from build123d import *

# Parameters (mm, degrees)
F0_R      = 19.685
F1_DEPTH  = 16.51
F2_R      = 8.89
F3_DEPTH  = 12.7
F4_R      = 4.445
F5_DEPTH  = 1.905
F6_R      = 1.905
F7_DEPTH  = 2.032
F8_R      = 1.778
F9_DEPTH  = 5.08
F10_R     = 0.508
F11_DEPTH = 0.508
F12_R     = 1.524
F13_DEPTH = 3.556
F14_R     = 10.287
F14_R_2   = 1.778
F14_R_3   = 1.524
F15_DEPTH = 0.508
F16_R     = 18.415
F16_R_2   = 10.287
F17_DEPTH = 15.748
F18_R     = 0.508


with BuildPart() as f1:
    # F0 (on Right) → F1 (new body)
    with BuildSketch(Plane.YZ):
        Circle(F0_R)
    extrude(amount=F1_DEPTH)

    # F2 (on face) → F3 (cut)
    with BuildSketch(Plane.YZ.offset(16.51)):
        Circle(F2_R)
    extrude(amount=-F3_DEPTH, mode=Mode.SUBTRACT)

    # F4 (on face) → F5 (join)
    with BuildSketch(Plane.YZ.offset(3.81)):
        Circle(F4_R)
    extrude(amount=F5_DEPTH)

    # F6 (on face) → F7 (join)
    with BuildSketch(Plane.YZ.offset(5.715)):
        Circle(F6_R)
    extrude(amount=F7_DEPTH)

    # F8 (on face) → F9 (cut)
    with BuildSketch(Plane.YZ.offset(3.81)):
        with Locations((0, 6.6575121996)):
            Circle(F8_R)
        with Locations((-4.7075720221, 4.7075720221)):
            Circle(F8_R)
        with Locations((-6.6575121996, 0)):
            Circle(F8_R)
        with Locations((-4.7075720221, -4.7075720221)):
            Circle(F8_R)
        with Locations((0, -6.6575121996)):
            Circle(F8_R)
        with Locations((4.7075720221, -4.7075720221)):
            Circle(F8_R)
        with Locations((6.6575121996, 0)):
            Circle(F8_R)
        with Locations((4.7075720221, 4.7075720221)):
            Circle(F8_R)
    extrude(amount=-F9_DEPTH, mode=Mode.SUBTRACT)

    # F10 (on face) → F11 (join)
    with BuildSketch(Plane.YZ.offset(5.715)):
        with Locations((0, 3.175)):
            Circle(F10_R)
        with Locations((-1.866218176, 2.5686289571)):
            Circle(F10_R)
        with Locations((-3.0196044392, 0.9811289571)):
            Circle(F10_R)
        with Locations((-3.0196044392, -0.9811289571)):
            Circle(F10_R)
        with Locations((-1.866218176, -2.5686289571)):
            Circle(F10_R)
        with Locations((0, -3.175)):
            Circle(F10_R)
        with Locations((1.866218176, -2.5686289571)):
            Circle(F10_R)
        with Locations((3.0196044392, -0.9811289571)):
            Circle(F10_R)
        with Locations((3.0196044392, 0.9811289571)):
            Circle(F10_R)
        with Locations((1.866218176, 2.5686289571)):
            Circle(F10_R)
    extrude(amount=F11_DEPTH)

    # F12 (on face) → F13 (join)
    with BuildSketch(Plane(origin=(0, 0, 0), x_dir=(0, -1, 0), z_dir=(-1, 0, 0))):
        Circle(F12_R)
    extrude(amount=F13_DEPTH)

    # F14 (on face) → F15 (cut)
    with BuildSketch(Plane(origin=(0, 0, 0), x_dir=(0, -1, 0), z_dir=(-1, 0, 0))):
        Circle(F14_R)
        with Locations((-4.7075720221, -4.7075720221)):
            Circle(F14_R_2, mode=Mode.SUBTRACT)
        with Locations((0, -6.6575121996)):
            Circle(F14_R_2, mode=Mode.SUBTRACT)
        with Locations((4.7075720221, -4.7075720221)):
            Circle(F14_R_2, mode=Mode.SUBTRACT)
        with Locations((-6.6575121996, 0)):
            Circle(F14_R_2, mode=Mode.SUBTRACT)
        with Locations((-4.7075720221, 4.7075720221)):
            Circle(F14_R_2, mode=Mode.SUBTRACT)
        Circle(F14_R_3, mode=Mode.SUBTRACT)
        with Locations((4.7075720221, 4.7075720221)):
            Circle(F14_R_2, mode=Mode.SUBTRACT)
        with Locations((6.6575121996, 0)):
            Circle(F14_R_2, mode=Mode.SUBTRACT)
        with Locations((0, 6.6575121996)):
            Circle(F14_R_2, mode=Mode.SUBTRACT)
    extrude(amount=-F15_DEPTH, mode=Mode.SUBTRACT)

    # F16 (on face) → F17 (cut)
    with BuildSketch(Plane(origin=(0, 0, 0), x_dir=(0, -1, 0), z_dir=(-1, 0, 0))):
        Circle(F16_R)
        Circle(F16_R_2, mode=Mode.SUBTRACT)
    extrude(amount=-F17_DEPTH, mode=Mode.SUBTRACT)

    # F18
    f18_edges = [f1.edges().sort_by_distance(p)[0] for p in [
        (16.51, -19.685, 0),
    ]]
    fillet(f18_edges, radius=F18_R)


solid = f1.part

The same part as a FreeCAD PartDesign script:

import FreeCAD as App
import Part
import Sketcher
Q = App.Units.Quantity


def edges_at(feature, points):
    """Names of the edges that pass closest to the given points."""
    edges = feature.Shape.Edges
    near = lambda p: min(range(len(edges)), key=lambda i: edges[i].distToShape(Part.Vertex(*p))[0])
    return sorted({f"Edge{near(p) + 1}" for p in points})

doc = App.newDocument("Part")
params = doc.addObject("Spreadsheet::Sheet", "Params")
for row, (alias, value) in enumerate([
    ("sketch1_diameter", "1.55 in"),
    ("pad1_length", "0.65 in"),
    ("sketch2_diameter", "0.7 in"),
    ("pocket1_length", "0.5 in"),
    ("sketch3_diameter", "0.35 in"),
    ("pad2_length", "0.075 in"),
    ("sketch4_diameter", "0.15 in"),
    ("pad3_length", "0.08 in"),
    ("sketch5_diameter", "0.14 in"),
    ("pocket2_length", "0.2 in"),
    ("sketch6_diameter", "0.04 in"),
    ("pad4_length", "0.02 in"),
    ("sketch7_diameter", "0.12 in"),
    ("pad5_length", "0.14 in"),
    ("sketch8_diameter", "0.81 in"),
    ("sketch8_diameter2", "0.14 in"),
    ("sketch8_diameter3", "0.12 in"),
    ("pocket3_length", "0.02 in"),
    ("sketch9_diameter", "1.45 in"),
    ("sketch9_diameter2", "0.81 in"),
    ("pocket4_length", "0.62 in"),
    ("fillet_radius", "0.02 in"),
], start=1):
    params.set(f"A{row}", alias)
    params.set(f"B{row}", "=" + value)
    params.setAlias(f"B{row}", alias)

body = doc.addObject("PartDesign::Body", "Body")

# Sketch on YZ plane
sketch1 = body.newObject("Sketcher::SketchObject", "Sketch")
sketch1.AttachmentSupport = (doc.getObject("YZ_Plane"), [""])
sketch1.MapMode = "FlatFace"
sketch1.addGeometry(Part.Circle(App.Vector(0, 0, 0), App.Vector(0, 0, 1), 20), False)
sketch1.addConstraint([
    Sketcher.Constraint("Coincident", 0, 3, -1, 1),
    Sketcher.Constraint("Diameter", 0, Q("1.55 in")),
])
sketch1.setExpression("Constraints[1]", "Params.sketch1_diameter")
pad1 = body.newObject("PartDesign::Pad", "Pad")
pad1.Profile = sketch1
pad1.setExpression("Length", "Params.pad1_length")

# Sketch on YZ plane
sketch2 = body.newObject("Sketcher::SketchObject", "Sketch001")
sketch2.AttachmentSupport = (doc.getObject("YZ_Plane"), [""])
sketch2.MapMode = "FlatFace"
sketch2.AttachmentOffset = App.Placement(App.Vector(0, 0, 0.65 * 25.4), App.Rotation())
sketch2.addGeometry(Part.Circle(App.Vector(0, 0, 0), App.Vector(0, 0, 1), 9), False)
sketch2.addConstraint([
    Sketcher.Constraint("Coincident", 0, 3, -1, 1),
    Sketcher.Constraint("Diameter", 0, Q("0.7 in")),
])
sketch2.setExpression("Constraints[1]", "Params.sketch2_diameter")
pocket1 = body.newObject("PartDesign::Pocket", "Pocket")
pocket1.Profile = sketch2
pocket1.setExpression("Length", "Params.pocket1_length")

# Sketch on YZ plane
sketch3 = body.newObject("Sketcher::SketchObject", "Sketch002")
sketch3.AttachmentSupport = (doc.getObject("YZ_Plane"), [""])
sketch3.MapMode = "FlatFace"
sketch3.AttachmentOffset = App.Placement(App.Vector(0, 0, 0.15 * 25.4), App.Rotation())
sketch3.addGeometry(Part.Circle(App.Vector(0, 0, 0), App.Vector(0, 0, 1), 4.4), False)
sketch3.addConstraint([
    Sketcher.Constraint("Coincident", 0, 3, -1, 1),
    Sketcher.Constraint("Diameter", 0, Q("0.35 in")),
])
sketch3.setExpression("Constraints[1]", "Params.sketch3_diameter")
pad2 = body.newObject("PartDesign::Pad", "Pad001")
pad2.Profile = sketch3
pad2.setExpression("Length", "Params.pad2_length")

# Sketch on YZ plane
sketch4 = body.newObject("Sketcher::SketchObject", "Sketch003")
sketch4.AttachmentSupport = (doc.getObject("YZ_Plane"), [""])
sketch4.MapMode = "FlatFace"
sketch4.AttachmentOffset = App.Placement(App.Vector(0, 0, 0.225 * 25.4), App.Rotation())
sketch4.addGeometry(Part.Circle(App.Vector(0, 0, 0), App.Vector(0, 0, 1), 1.9), False)
sketch4.addConstraint([
    Sketcher.Constraint("Coincident", 0, 3, -1, 1),
    Sketcher.Constraint("Diameter", 0, Q("0.15 in")),
])
sketch4.setExpression("Constraints[1]", "Params.sketch4_diameter")
pad3 = body.newObject("PartDesign::Pad", "Pad002")
pad3.Profile = sketch4
pad3.setExpression("Length", "Params.pad3_length")

# Sketch on YZ plane
sketch5 = body.newObject("Sketcher::SketchObject", "Sketch004")
sketch5.AttachmentSupport = (doc.getObject("YZ_Plane"), [""])
sketch5.MapMode = "FlatFace"
sketch5.AttachmentOffset = App.Placement(App.Vector(0, 0, 0.15 * 25.4), App.Rotation())
sketch5.addGeometry([
    Part.Circle(App.Vector(0, 6.7, 0), App.Vector(0, 0, 1), 1.8),  # 0
    Part.Circle(App.Vector(-4.7, 4.7, 0), App.Vector(0, 0, 1), 1.8),  # 1
    Part.Circle(App.Vector(-6.7, 0, 0), App.Vector(0, 0, 1), 1.8),  # 2
    Part.Circle(App.Vector(-4.7, -4.7, 0), App.Vector(0, 0, 1), 1.8),  # 3
    Part.Circle(App.Vector(0, -6.7, 0), App.Vector(0, 0, 1), 1.8),  # 4
    Part.Circle(App.Vector(4.7, -4.7, 0), App.Vector(0, 0, 1), 1.8),  # 5
    Part.Circle(App.Vector(6.7, 0, 0), App.Vector(0, 0, 1), 1.8),  # 6
    Part.Circle(App.Vector(4.7, 4.7, 0), App.Vector(0, 0, 1), 1.8),  # 7
], False)
sketch5.addConstraint([
    Sketcher.Constraint("Equal", 0, 1),
    Sketcher.Constraint("Equal", 1, 2),
    Sketcher.Constraint("Equal", 2, 3),
    Sketcher.Constraint("Equal", 3, 4),
    Sketcher.Constraint("Equal", 4, 5),
    Sketcher.Constraint("Equal", 5, 6),
    Sketcher.Constraint("Equal", 6, 7),
    Sketcher.Constraint("Symmetric", 0, 3, 4, 3, -1, 1),
    Sketcher.Constraint("Symmetric", 1, 3, 5, 3, -1, 1),
    Sketcher.Constraint("Symmetric", 2, 3, 6, 3, -1, 1),
    Sketcher.Constraint("Symmetric", 3, 3, 7, 3, -1, 1),
    Sketcher.Constraint("Symmetric", 3, 3, 5, 3, -2),
    Sketcher.Constraint("PointOnObject", 0, 3, -2),
    Sketcher.Constraint("PointOnObject", 2, 3, -1),
    Sketcher.Constraint("Diameter", 0, Q("0.14 in")),
    Sketcher.Constraint("DistanceY", 1, 3, 0, 3, 1.94994),
    Sketcher.Constraint("DistanceX", 2, 3, 1, 3, 1.94994),
    Sketcher.Constraint("DistanceY", -1, 1, 0, 3, 6.657512),
    Sketcher.Constraint("DistanceX", 1, 3, -1, 1, 4.707572),
])
sketch5.setExpression("Constraints[14]", "Params.sketch5_diameter")
pocket2 = body.newObject("PartDesign::Pocket", "Pocket001")
pocket2.Profile = sketch5
pocket2.setExpression("Length", "Params.pocket2_length")

# Sketch on YZ plane
sketch6 = body.newObject("Sketcher::SketchObject", "Sketch005")
sketch6.AttachmentSupport = (doc.getObject("YZ_Plane"), [""])
sketch6.MapMode = "FlatFace"
sketch6.AttachmentOffset = App.Placement(App.Vector(0, 0, 0.225 * 25.4), App.Rotation())
sketch6.addGeometry([
    Part.Circle(App.Vector(0, 3.2, 0), App.Vector(0, 0, 1), 0.5),  # 0
    Part.Circle(App.Vector(-1.9, 2.6, 0), App.Vector(0, 0, 1), 0.5),  # 1
    Part.Circle(App.Vector(-3, 1, 0), App.Vector(0, 0, 1), 0.5),  # 2
    Part.Circle(App.Vector(-3, -1, 0), App.Vector(0, 0, 1), 0.5),  # 3
    Part.Circle(App.Vector(-1.9, -2.6, 0), App.Vector(0, 0, 1), 0.5),  # 4
    Part.Circle(App.Vector(0, -3.2, 0), App.Vector(0, 0, 1), 0.5),  # 5
    Part.Circle(App.Vector(1.9, -2.6, 0), App.Vector(0, 0, 1), 0.5),  # 6
    Part.Circle(App.Vector(3, -1, 0), App.Vector(0, 0, 1), 0.5),  # 7
    Part.Circle(App.Vector(3, 1, 0), App.Vector(0, 0, 1), 0.5),  # 8
    Part.Circle(App.Vector(1.9, 2.6, 0), App.Vector(0, 0, 1), 0.5),  # 9
], False)
sketch6.addConstraint([
    Sketcher.Constraint("Equal", 0, 1),
    Sketcher.Constraint("Equal", 1, 2),
    Sketcher.Constraint("Equal", 2, 3),
    Sketcher.Constraint("Equal", 3, 4),
    Sketcher.Constraint("Equal", 4, 5),
    Sketcher.Constraint("Equal", 5, 6),
    Sketcher.Constraint("Equal", 6, 7),
    Sketcher.Constraint("Equal", 7, 8),
    Sketcher.Constraint("Equal", 8, 9),
    Sketcher.Constraint("Symmetric", 0, 3, 5, 3, -1, 1),
    Sketcher.Constraint("Symmetric", 1, 3, 6, 3, -1, 1),
    Sketcher.Constraint("Symmetric", 2, 3, 7, 3, -1, 1),
    Sketcher.Constraint("Symmetric", 3, 3, 8, 3, -1, 1),
    Sketcher.Constraint("Symmetric", 4, 3, 9, 3, -1, 1),
    Sketcher.Constraint("Symmetric", 4, 3, 6, 3, -2),
    Sketcher.Constraint("Symmetric", 3, 3, 7, 3, -2),
    Sketcher.Constraint("PointOnObject", 0, 3, -2),
    Sketcher.Constraint("Diameter", 0, Q("0.04 in")),
    Sketcher.Constraint("DistanceY", 5, 3, 0, 3, Q("0.25 in")),
    Sketcher.Constraint("DistanceY", 2, 3, 1, 3, Q("0.0625 in")),
    Sketcher.Constraint("DistanceX", 1, 3, -1, 1, 1.866218),
    Sketcher.Constraint("DistanceY", -1, 1, 1, 3, 2.568629),
    Sketcher.Constraint("DistanceX", 3, 3, 7, 3, 6.039209),
])
sketch6.setExpression("Constraints[17]", "Params.sketch6_diameter")
pad4 = body.newObject("PartDesign::Pad", "Pad003")
pad4.Profile = sketch6
pad4.setExpression("Length", "Params.pad4_length")

# Sketch on YZ plane
sketch7 = body.newObject("Sketcher::SketchObject", "Sketch006")
sketch7.AttachmentSupport = (doc.getObject("YZ_Plane"), [""])
sketch7.MapMode = "FlatFace"
sketch7.addGeometry(Part.Circle(App.Vector(0, 0, 0), App.Vector(0, 0, 1), 1.5), False)
sketch7.addConstraint([
    Sketcher.Constraint("Coincident", 0, 3, -1, 1),
    Sketcher.Constraint("Diameter", 0, Q("0.12 in")),
])
sketch7.setExpression("Constraints[1]", "Params.sketch7_diameter")
pad5 = body.newObject("PartDesign::Pad", "Pad004")
pad5.Profile = sketch7
pad5.setExpression("Length", "Params.pad5_length")
pad5.Reversed = True

# Sketch on YZ plane
sketch8 = body.newObject("Sketcher::SketchObject", "Sketch007")
sketch8.AttachmentSupport = (doc.getObject("YZ_Plane"), [""])
sketch8.MapMode = "FlatFace"
sketch8.addGeometry([
    Part.Circle(App.Vector(0, 0, 0), App.Vector(0, 0, 1), 10.3),  # 0
    Part.Circle(App.Vector(4.7, -4.7, 0), App.Vector(0, 0, 1), 1.8),  # 1
    Part.Circle(App.Vector(0, -6.7, 0), App.Vector(0, 0, 1), 1.8),  # 2
    Part.Circle(App.Vector(-4.7, -4.7, 0), App.Vector(0, 0, 1), 1.8),  # 3
    Part.Circle(App.Vector(6.7, 0, 0), App.Vector(0, 0, 1), 1.8),  # 4
    Part.Circle(App.Vector(0, 0, 0), App.Vector(0, 0, 1), 1.5),  # 5
    Part.Circle(App.Vector(4.7, 4.7, 0), App.Vector(0, 0, 1), 1.8),  # 6
    Part.Circle(App.Vector(0, 6.7, 0), App.Vector(0, 0, 1), 1.8),  # 7
    Part.Circle(App.Vector(-6.7, 0, 0), App.Vector(0, 0, 1), 1.8),  # 8
    Part.Circle(App.Vector(-4.7, 4.7, 0), App.Vector(0, 0, 1), 1.8),  # 9
], False)
sketch8.addConstraint([
    Sketcher.Constraint("Coincident", 0, 3, -1, 1),
    Sketcher.Constraint("Coincident", 5, 3, -1, 1),
    Sketcher.Constraint("Equal", 1, 2),
    Sketcher.Constraint("Equal", 2, 3),
    Sketcher.Constraint("Equal", 3, 4),
    Sketcher.Constraint("Equal", 4, 6),
    Sketcher.Constraint("Equal", 6, 7),
    Sketcher.Constraint("Equal", 7, 8),
    Sketcher.Constraint("Equal", 8, 9),
    Sketcher.Constraint("Symmetric", 3, 3, 6, 3, -1, 1),
    Sketcher.Constraint("Symmetric", 2, 3, 7, 3, -1, 1),
    Sketcher.Constraint("Symmetric", 4, 3, 8, 3, -1, 1),
    Sketcher.Constraint("Symmetric", 1, 3, 9, 3, -1, 1),
    Sketcher.Constraint("Symmetric", 1, 3, 3, 3, -2),
    Sketcher.Constraint("PointOnObject", 2, 3, -2),
    Sketcher.Constraint("PointOnObject", 4, 3, -1),
    Sketcher.Constraint("Diameter", 0, Q("0.81 in")),
    Sketcher.Constraint("Diameter", 1, Q("0.14 in")),
    Sketcher.Constraint("Diameter", 5, Q("0.12 in")),
    Sketcher.Constraint("DistanceY", 2, 3, 1, 3, 1.94994),
    Sketcher.Constraint("DistanceX", 1, 3, 4, 3, 1.94994),
    Sketcher.Constraint("DistanceX", -1, 1, 1, 3, 4.707572),
    Sketcher.Constraint("DistanceY", 1, 3, -1, 1, 4.707572),
])
sketch8.setExpression("Constraints[16]", "Params.sketch8_diameter")
sketch8.setExpression("Constraints[17]", "Params.sketch8_diameter2")
sketch8.setExpression("Constraints[18]", "Params.sketch8_diameter3")
pocket3 = body.newObject("PartDesign::Pocket", "Pocket002")
pocket3.Profile = sketch8
pocket3.setExpression("Length", "Params.pocket3_length")
pocket3.Reversed = True

# Sketch on YZ plane
sketch9 = body.newObject("Sketcher::SketchObject", "Sketch008")
sketch9.AttachmentSupport = (doc.getObject("YZ_Plane"), [""])
sketch9.MapMode = "FlatFace"
sketch9.addGeometry([
    Part.Circle(App.Vector(0, 0, 0), App.Vector(0, 0, 1), 18),
    Part.Circle(App.Vector(0, 0, 0), App.Vector(0, 0, 1), 10),
], False)
sketch9.addConstraint([
    Sketcher.Constraint("Coincident", 0, 3, -1, 1),
    Sketcher.Constraint("Coincident", 1, 3, -1, 1),
    Sketcher.Constraint("Diameter", 0, Q("1.45 in")),
    Sketcher.Constraint("Diameter", 1, Q("0.81 in")),
])
sketch9.setExpression("Constraints[2]", "Params.sketch9_diameter")
sketch9.setExpression("Constraints[3]", "Params.sketch9_diameter2")
pocket4 = body.newObject("PartDesign::Pocket", "Pocket003")
pocket4.Profile = sketch9
pocket4.setExpression("Length", "Params.pocket4_length")
pocket4.Reversed = True
doc.recompute()

fillet = body.newObject("PartDesign::Fillet", "Fillet")
fillet.Base = (pocket4, edges_at(pocket4, [(16.51, -19.685, 0)]))
fillet.setExpression("Radius", "Params.fillet_radius")

doc.recompute()
